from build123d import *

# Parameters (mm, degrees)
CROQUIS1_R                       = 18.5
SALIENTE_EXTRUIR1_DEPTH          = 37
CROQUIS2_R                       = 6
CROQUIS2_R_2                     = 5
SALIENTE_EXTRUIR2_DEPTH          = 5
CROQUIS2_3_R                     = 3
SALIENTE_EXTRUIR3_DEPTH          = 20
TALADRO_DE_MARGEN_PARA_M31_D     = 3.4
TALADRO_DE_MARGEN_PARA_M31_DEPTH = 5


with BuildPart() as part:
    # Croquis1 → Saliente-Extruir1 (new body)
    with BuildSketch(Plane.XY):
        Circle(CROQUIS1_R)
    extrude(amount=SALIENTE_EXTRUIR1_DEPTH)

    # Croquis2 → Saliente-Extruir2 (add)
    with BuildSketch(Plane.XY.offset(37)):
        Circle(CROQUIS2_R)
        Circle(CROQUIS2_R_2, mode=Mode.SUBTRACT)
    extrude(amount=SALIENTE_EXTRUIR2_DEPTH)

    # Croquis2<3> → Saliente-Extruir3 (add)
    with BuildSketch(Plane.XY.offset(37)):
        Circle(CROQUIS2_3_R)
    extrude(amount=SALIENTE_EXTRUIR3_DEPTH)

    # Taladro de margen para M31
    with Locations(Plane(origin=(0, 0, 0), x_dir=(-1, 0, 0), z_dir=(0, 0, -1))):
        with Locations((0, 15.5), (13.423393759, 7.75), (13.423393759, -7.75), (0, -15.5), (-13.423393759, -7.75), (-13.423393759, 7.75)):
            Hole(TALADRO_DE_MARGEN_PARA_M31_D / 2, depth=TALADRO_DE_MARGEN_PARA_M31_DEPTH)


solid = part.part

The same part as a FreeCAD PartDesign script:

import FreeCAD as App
import Part
import Sketcher

V = App.Vector
Q = App.Units.Quantity

doc = App.newDocument("Part")
body = doc.addObject("PartDesign::Body", "Body")

# Sketch on XY plane
sketch1 = body.newObject("Sketcher::SketchObject", "Sketch")
sketch1.AttachmentSupport = (doc.getObject("XY_Plane"), [""])
sketch1.MapMode = "FlatFace"
sketch1.addGeometry(Part.Circle(V(0, 0, 0), V(0, 0, 1), 18.5), False)
sketch1.addConstraint(Sketcher.Constraint("Coincident", 0, 3, -1, 1))
sketch1.addConstraint(Sketcher.Constraint("Diameter", 0, Q("37 mm")))
pad1 = body.newObject("PartDesign::Pad", "Pad")
pad1.Profile = sketch1
pad1.Length = 37

# Sketch on XY plane
sketch2 = body.newObject("Sketcher::SketchObject", "Sketch001")
sketch2.AttachmentSupport = (doc.getObject("XY_Plane"), [""])
sketch2.MapMode = "FlatFace"
sketch2.AttachmentOffset = App.Placement(V(0, 0, 37), App.Rotation())
sketch2.addGeometry(Part.Circle(V(0, 0, 0), V(0, 0, 1), 6), False)
sketch2.addGeometry(Part.Circle(V(0, 0, 0), V(0, 0, 1), 5), False)
sketch2.addConstraint(Sketcher.Constraint("Coincident", 0, 3, -1, 1))
sketch2.addConstraint(Sketcher.Constraint("Coincident", 1, 3, -1, 1))
sketch2.addConstraint(Sketcher.Constraint("Diameter", 0, Q("12 mm")))
sketch2.addConstraint(Sketcher.Constraint("Diameter", 1, Q("10 mm")))
pad2 = body.newObject("PartDesign::Pad", "Pad001")
pad2.Profile = sketch2
pad2.Length = 5

# Sketch on XY plane
sketch3 = body.newObject("Sketcher::SketchObject", "Sketch002")
sketch3.AttachmentSupport = (doc.getObject("XY_Plane"), [""])
sketch3.MapMode = "FlatFace"
sketch3.AttachmentOffset = App.Placement(V(0, 0, 37), App.Rotation())
sketch3.addGeometry(Part.Circle(V(0, 0, 0), V(0, 0, 1), 3), False)
sketch3.addConstraint(Sketcher.Constraint("Coincident", 0, 3, -1, 1))
sketch3.addConstraint(Sketcher.Constraint("Diameter", 0, Q("6 mm")))
pad3 = body.newObject("PartDesign::Pad", "Pad002")
pad3.Profile = sketch3
pad3.Length = 20

# Sketch on XY plane
sketch4 = body.newObject("Sketcher::SketchObject", "Sketch003")
sketch4.AttachmentSupport = (doc.getObject("XY_Plane"), [""])
sketch4.MapMode = "FlatFace"
sketch4.addGeometry(Part.Circle(V(0, 15.5, 0), V(0, 0, 1), 1.7), False)
sketch4.addGeometry(Part.Circle(V(-13.423394, 7.75, 0), V(0, 0, 1), 1.7), False)
sketch4.addGeometry(Part.Circle(V(-13.423394, -7.75, 0), V(0, 0, 1), 1.7), False)
sketch4.addGeometry(Part.Circle(V(0, -15.5, 0), V(0, 0, 1), 1.7), False)
sketch4.addGeometry(Part.Circle(V(13.423394, -7.75, 0), V(0, 0, 1), 1.7), False)
sketch4.addGeometry(Part.Circle(V(13.423394, 7.75, 0), V(0, 0, 1), 1.7), False)
sketch4.addConstraint(Sketcher.Constraint("Equal", 0, 1))
sketch4.addConstraint(Sketcher.Constraint("Equal", 1, 2))
sketch4.addConstraint(Sketcher.Constraint("Equal", 2, 3))
sketch4.addConstraint(Sketcher.Constraint("Equal", 3, 4))
sketch4.addConstraint(Sketcher.Constraint("Equal", 4, 5))
sketch4.addConstraint(Sketcher.Constraint("Symmetric", 0, 3, 3, 3, -1, 1))
sketch4.addConstraint(Sketcher.Constraint("Symmetric", 1, 3, 4, 3, -1, 1))
sketch4.addConstraint(Sketcher.Constraint("Symmetric", 2, 3, 5, 3, -1, 1))
sketch4.addConstraint(Sketcher.Constraint("Symmetric", 2, 3, 4, 3, -2))
sketch4.addConstraint(Sketcher.Constraint("PointOnObject", 0, 3, -2))
sketch4.addConstraint(Sketcher.Constraint("Diameter", 0, Q("3.4 mm")))
sketch4.addConstraint(Sketcher.Constraint("DistanceY", 3, 3, 0, 3, Q("31 mm")))
sketch4.addConstraint(Sketcher.Constraint("DistanceY", 2, 3, 1, 3, Q("15.5 mm")))
sketch4.addConstraint(Sketcher.Constraint("DistanceX", 1, 3, -1, 1, Q("13.423394 mm")))
doc.recompute()
hole = body.newObject("PartDesign::Hole", "Hole")
hole.Profile = sketch4
hole.ThreadType = "None"
hole.Diameter = 3.4
hole.DepthType = "Dimension"
hole.Depth = 5
hole.DrillPoint = "Flat"
hole.Reversed = True

doc.recompute()
